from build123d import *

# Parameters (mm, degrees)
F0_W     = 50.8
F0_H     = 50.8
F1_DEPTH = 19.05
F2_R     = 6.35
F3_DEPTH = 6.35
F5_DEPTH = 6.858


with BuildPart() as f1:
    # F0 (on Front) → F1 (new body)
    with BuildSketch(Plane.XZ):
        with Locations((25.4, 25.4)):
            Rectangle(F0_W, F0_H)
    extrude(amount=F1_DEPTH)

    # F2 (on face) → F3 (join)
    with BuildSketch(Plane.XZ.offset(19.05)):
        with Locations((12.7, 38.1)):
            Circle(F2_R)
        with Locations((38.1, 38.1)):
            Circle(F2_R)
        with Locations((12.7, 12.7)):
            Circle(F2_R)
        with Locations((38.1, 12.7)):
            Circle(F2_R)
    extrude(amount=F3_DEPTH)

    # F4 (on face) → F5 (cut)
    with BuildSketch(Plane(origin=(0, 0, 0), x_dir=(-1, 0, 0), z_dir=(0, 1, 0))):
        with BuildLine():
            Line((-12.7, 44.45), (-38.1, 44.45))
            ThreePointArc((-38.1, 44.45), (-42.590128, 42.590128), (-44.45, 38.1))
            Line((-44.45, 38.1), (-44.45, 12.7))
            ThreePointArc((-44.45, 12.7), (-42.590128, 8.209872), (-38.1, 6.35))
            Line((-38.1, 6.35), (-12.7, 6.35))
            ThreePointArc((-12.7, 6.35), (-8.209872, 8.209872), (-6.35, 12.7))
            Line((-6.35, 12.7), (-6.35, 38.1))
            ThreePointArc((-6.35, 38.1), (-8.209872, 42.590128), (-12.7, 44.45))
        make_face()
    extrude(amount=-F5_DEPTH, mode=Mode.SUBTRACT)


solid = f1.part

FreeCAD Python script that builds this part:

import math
import FreeCAD as App
import Part
import Sketcher
from FreeCAD import Vector
Q = App.Units.Quantity


def add_polygon(sketch, points):
    """Adds a closed chain of lines whose ends are joined by coincident constraints."""
    first, n = sketch.GeometryCount, len(points)
    for a, b in zip(points, points[1:] + points[:1]):
        sketch.addGeometry(Part.LineSegment(App.Vector(*a, 0), App.Vector(*b, 0)), False)
    for i in range(n):
        sketch.addConstraint(Sketcher.Constraint("Coincident", first + i, 2, first + (i + 1) % n, 1))

doc = App.newDocument("Part")
body = doc.addObject("PartDesign::Body", "Body")

sketch1 = body.newObject("Sketcher::SketchObject", "Sketch")
sketch1.AttachmentSupport = (doc.getObject("XZ_Plane"), [""])
sketch1.MapMode = "FlatFace"
add_polygon(sketch1, [(0, 50.8), (0, 0), (50.8, 0), (50.8, 50.8)])
sketch1.addConstraint(Sketcher.Constraint("Vertical", 0))
sketch1.addConstraint(Sketcher.Constraint("Horizontal", 1))
sketch1.addConstraint(Sketcher.Constraint("Vertical", 2))
sketch1.addConstraint(Sketcher.Constraint("Horizontal", 3))
sketch1.addConstraint(Sketcher.Constraint("Coincident", 0, 2, -1, 1))
sketch1.addConstraint(Sketcher.Constraint("Equal", 3, 0))
sketch1.addConstraint(Sketcher.Constraint("DistanceX", 1, 1, 1, 2, Q("2 in")))
pad1 = body.newObject("PartDesign::Pad", "Pad")
pad1.Profile = sketch1
pad1.Length = Q("0.75 in")

sketch2 = body.newObject("Sketcher::SketchObject", "Sketch001")
sketch2.AttachmentSupport = (doc.getObject("XZ_Plane"), [""])
sketch2.MapMode = "FlatFace"
sketch2.AttachmentOffset = App.Placement(Vector(0, 0, 0.75 * 25.4), App.Rotation())
sketch2.addGeometry(Part.Circle(Vector(12.7, 38.1, 0), Vector(0, 0, 1), 6.35), False)
sketch2.addGeometry(Part.Circle(Vector(38.1, 38.1, 0), Vector(0, 0, 1), 6.35), False)
sketch2.addGeometry(Part.Circle(Vector(12.7, 12.7, 0), Vector(0, 0, 1), 6.35), False)
sketch2.addGeometry(Part.Circle(Vector(38.1, 12.7, 0), Vector(0, 0, 1), 6.35), False)
sketch2.addConstraint(Sketcher.Constraint("Equal", 0, 1))
sketch2.addConstraint(Sketcher.Constraint("Equal", 1, 2))
sketch2.addConstraint(Sketcher.Constraint("Equal", 2, 3))
sketch2.addConstraint(Sketcher.Constraint("Horizontal", 0, 3, 1, 3))
sketch2.addConstraint(Sketcher.Constraint("Horizontal", 2, 3, 3, 3))
sketch2.addConstraint(Sketcher.Constraint("Vertical", 0, 3, 2, 3))
sketch2.addConstraint(Sketcher.Constraint("Vertical", 1, 3, 3, 3))
sketch2.addConstraint(Sketcher.Constraint("Diameter", 0, Q("0.5 in")))
sketch2.addConstraint(Sketcher.Constraint("DistanceX", 0, 3, 1, 3, Q("1 in")))
sketch2.addConstraint(Sketcher.Constraint("DistanceY", 2, 3, 0, 3, Q("1 in")))
sketch2.addConstraint(Sketcher.Constraint("DistanceX", -1, 1, 0, 3, Q("0.5 in")))
sketch2.addConstraint(Sketcher.Constraint("DistanceY", -1, 1, 0, 3, Q("1.5 in")))
pad2 = body.newObject("PartDesign::Pad", "Pad001")
pad2.Profile = sketch2
pad2.Length = Q("0.25 in")

sketch3 = body.newObject("Sketcher::SketchObject", "Sketch002")
sketch3.AttachmentSupport = (doc.getObject("XZ_Plane"), [""])
sketch3.MapMode = "FlatFace"
sketch3.addGeometry(Part.LineSegment(Vector(12.7, 44.45, 0), Vector(38.1, 44.45, 0)), False)
sketch3.addGeometry(Part.ArcOfCircle(Part.Circle(Vector(38.1, 38.1, 0), Vector(0, 0, 1), 6.35), math.radians(0.000002), math.radians(89.999998)), False)
sketch3.addGeometry(Part.LineSegment(Vector(44.45, 38.1, 0), Vector(44.45, 12.7, 0)), False)
sketch3.addGeometry(Part.ArcOfCircle(Part.Circle(Vector(38.1, 12.7, 0), Vector(0, 0, 1), 6.35), math.radians(-89.999998), math.radians(-0.000002)), False)
sketch3.addGeometry(Part.LineSegment(Vector(38.1, 6.35, 0), Vector(12.7, 6.35, 0)), False)
sketch3.addGeometry(Part.ArcOfCircle(Part.Circle(Vector(12.7, 12.7, 0), Vector(0, 0, 1), 6.35), math.radians(-179.999998), math.radians(-90.000002)), False)
sketch3.addGeometry(Part.LineSegment(Vector(6.35, 12.7, 0), Vector(6.35, 38.1, 0)), False)
sketch3.addGeometry(Part.ArcOfCircle(Part.Circle(Vector(12.7, 38.1, 0), Vector(0, 0, 1), 6.35), math.radians(90.000002), math.radians(179.999998)), False)
sketch3.addConstraint(Sketcher.Constraint("Tangent", 0, 2, 1, 2))
sketch3.addConstraint(Sketcher.Constraint("Tangent", 1, 1, 2, 1))
sketch3.addConstraint(Sketcher.Constraint("Tangent", 2, 2, 3, 2))
sketch3.addConstraint(Sketcher.Constraint("Tangent", 3, 1, 4, 1))
sketch3.addConstraint(Sketcher.Constraint("Tangent", 4, 2, 5, 2))
sketch3.addConstraint(Sketcher.Constraint("Tangent", 5, 1, 6, 1))
sketch3.addConstraint(Sketcher.Constraint("Tangent", 6, 2, 7, 2))
sketch3.addConstraint(Sketcher.Constraint("Tangent", 7, 1, 0, 1))
sketch3.addConstraint(Sketcher.Constraint("Horizontal", 0))
sketch3.addConstraint(Sketcher.Constraint("Vertical", 2))
sketch3.addConstraint(Sketcher.Constraint("Horizontal", 4))
sketch3.addConstraint(Sketcher.Constraint("Vertical", 6))
sketch3.addConstraint(Sketcher.Constraint("Equal", 1, 3))
sketch3.addConstraint(Sketcher.Constraint("Equal", 3, 5))
sketch3.addConstraint(Sketcher.Constraint("Equal", 5, 7))
sketch3.addConstraint(Sketcher.Constraint("Equal", 4, 2))
sketch3.addConstraint(Sketcher.Constraint("DistanceX", 0, 1, 0, 2, Q("1 in")))
sketch3.addConstraint(Sketcher.Constraint("Radius", 1, Q("0.25 in")))
sketch3.addConstraint(Sketcher.Constraint("DistanceX", -1, 1, 1, 3, Q("1.5 in")))
sketch3.addConstraint(Sketcher.Constraint("DistanceY", -1, 1, 1, 3, Q("1.5 in")))
pocket1 = body.newObject("PartDesign::Pocket", "Pocket")
pocket1.Profile = sketch3
pocket1.Length = Q("0.27 in")
pocket1.Reversed = True

doc.recompute()
